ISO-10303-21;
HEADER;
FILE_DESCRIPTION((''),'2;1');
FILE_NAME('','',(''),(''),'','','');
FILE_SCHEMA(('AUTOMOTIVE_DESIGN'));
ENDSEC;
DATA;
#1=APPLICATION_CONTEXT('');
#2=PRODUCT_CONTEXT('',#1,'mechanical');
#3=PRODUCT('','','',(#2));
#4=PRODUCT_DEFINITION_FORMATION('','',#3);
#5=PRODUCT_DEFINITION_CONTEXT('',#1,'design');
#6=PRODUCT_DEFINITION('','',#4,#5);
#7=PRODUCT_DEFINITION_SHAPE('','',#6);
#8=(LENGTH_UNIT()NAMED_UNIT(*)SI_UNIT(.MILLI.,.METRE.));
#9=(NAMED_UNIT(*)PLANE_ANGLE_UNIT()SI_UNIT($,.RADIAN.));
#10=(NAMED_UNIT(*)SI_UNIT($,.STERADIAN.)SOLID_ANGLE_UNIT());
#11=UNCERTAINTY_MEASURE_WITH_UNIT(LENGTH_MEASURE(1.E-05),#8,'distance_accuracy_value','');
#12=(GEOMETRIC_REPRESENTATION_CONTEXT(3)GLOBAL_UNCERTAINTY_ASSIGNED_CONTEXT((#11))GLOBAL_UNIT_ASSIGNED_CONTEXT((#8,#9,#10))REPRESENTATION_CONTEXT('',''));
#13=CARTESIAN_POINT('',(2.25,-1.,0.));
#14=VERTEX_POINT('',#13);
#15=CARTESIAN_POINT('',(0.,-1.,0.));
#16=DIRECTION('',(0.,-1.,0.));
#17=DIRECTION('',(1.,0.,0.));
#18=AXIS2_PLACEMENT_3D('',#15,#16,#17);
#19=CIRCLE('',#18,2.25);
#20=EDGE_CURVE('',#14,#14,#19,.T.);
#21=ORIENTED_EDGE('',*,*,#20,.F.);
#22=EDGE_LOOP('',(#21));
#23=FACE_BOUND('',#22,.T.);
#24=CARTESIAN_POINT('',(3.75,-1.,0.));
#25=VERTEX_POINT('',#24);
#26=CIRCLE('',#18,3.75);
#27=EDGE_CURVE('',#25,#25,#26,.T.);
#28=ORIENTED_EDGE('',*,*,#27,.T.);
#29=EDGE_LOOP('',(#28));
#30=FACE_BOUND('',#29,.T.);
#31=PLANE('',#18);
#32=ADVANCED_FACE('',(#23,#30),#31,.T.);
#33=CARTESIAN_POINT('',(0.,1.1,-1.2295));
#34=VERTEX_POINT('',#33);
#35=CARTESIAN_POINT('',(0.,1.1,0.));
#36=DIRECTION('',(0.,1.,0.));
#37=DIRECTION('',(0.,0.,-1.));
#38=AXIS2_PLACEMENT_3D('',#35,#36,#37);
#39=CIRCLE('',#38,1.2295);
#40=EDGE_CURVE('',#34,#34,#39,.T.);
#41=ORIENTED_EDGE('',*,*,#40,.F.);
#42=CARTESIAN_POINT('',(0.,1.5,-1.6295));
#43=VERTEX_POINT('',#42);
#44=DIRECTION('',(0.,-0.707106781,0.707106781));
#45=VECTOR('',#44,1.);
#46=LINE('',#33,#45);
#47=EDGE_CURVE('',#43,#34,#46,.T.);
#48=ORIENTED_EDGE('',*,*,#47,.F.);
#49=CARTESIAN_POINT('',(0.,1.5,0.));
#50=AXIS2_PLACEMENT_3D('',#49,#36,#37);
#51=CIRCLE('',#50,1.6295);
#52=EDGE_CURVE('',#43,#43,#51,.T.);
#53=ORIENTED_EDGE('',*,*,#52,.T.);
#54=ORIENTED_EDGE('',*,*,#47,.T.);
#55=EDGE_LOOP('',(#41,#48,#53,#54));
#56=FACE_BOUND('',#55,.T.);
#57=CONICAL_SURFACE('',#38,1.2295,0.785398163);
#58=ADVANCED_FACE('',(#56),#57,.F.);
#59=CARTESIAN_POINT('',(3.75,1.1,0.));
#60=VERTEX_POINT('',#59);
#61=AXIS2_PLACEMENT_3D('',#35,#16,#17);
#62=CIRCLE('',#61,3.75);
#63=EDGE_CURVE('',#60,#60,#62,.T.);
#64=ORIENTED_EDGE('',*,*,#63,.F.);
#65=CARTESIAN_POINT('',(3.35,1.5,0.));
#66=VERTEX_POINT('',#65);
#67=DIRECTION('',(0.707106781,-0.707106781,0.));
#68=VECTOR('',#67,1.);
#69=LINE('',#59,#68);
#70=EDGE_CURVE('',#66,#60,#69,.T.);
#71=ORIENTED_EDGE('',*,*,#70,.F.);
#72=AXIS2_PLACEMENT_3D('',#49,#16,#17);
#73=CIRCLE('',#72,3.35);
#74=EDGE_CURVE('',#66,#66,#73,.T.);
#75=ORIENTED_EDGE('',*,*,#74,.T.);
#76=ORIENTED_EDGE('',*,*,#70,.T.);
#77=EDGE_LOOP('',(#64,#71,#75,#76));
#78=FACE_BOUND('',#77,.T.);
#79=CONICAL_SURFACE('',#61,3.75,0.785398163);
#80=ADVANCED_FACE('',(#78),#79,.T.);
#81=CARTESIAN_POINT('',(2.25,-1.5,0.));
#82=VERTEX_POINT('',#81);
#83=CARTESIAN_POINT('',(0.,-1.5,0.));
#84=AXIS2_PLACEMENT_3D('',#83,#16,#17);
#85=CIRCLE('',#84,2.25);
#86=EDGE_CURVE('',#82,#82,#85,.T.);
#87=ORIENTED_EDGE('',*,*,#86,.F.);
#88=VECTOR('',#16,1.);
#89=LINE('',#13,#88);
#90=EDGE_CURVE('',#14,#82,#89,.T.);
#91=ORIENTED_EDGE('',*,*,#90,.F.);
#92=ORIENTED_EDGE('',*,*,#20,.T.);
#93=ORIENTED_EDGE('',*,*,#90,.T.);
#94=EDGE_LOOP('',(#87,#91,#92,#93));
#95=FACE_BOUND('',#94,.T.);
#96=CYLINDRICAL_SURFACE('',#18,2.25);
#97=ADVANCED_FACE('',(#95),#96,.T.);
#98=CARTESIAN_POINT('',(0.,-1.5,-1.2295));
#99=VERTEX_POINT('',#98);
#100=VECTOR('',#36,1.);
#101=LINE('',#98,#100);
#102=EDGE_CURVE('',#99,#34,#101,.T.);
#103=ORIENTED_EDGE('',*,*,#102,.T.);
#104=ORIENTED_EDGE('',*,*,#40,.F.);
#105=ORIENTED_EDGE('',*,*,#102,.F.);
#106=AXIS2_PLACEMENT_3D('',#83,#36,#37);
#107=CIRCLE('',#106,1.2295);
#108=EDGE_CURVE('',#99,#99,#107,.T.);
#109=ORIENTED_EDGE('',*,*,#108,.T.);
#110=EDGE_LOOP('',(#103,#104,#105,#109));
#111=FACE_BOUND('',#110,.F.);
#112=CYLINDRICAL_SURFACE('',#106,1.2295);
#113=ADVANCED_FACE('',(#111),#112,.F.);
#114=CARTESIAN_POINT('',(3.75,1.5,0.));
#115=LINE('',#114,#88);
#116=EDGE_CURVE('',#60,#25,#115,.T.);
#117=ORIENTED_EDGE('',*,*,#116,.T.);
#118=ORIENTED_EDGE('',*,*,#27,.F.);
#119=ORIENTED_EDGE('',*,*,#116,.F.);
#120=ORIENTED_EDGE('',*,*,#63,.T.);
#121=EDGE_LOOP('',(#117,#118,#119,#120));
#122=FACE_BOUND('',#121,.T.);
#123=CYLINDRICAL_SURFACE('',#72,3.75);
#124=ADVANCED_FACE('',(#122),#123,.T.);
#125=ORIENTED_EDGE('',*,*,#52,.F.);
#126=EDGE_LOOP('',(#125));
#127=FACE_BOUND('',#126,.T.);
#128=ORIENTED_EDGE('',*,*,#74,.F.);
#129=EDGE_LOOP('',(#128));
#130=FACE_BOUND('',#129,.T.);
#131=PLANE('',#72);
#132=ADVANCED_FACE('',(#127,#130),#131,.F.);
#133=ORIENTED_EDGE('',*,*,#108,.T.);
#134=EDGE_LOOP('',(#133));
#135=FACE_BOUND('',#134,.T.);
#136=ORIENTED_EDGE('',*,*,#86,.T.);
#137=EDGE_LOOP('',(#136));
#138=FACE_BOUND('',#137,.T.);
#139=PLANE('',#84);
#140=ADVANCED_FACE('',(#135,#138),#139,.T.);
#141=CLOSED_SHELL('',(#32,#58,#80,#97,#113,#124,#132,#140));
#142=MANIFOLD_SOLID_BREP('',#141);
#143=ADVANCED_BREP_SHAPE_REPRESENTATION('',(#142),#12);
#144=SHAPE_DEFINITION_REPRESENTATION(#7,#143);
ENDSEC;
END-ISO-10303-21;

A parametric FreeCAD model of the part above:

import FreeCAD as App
import Part
import Sketcher


def edges_at(feature, points):
    """Names of the edges that pass closest to the given points."""
    edges = feature.Shape.Edges
    near = lambda p: min(range(len(edges)), key=lambda i: edges[i].distToShape(Part.Vertex(*p))[0])
    return sorted({f"Edge{near(p) + 1}" for p in points})

doc = App.newDocument("Part")
body = doc.addObject("PartDesign::Body", "Body")

# Sketch on XY plane
sketch1 = body.newObject("Sketcher::SketchObject", "Sketch")
sketch1.AttachmentSupport = (doc.getObject("XY_Plane"), [""])
sketch1.MapMode = "FlatFace"
sketch1.addGeometry([
    Part.LineSegment(App.Vector(3.8, 1.5, 0), App.Vector(0, 1.5, 0)),  # 0
    Part.LineSegment(App.Vector(0, 1.5, 0), App.Vector(0, -1.5, 0)),  # 1
    Part.LineSegment(App.Vector(0, -1.5, 0), App.Vector(2.2, -1.5, 0)),  # 2
    Part.LineSegment(App.Vector(2.2, -1.5, 0), App.Vector(2.2, -1, 0)),  # 3
    Part.LineSegment(App.Vector(2.2, -1, 0), App.Vector(3.8, -1, 0)),  # 4
    Part.LineSegment(App.Vector(3.8, -1, 0), App.Vector(3.8, 1.5, 0)),  # 5
], False)
sketch1.addConstraint([
    Sketcher.Constraint("Coincident", 0, 2, 1, 1),
    Sketcher.Constraint("Coincident", 1, 2, 2, 1),
    Sketcher.Constraint("Coincident", 2, 2, 3, 1),
    Sketcher.Constraint("Coincident", 3, 2, 4, 1),
    Sketcher.Constraint("Coincident", 4, 2, 5, 1),
    Sketcher.Constraint("Coincident", 5, 2, 0, 1),
    Sketcher.Constraint("Horizontal", 0),
    Sketcher.Constraint("Vertical", 1),
    Sketcher.Constraint("Horizontal", 2),
    Sketcher.Constraint("Vertical", 3),
    Sketcher.Constraint("Horizontal", 4),
    Sketcher.Constraint("Vertical", 5),
    Sketcher.Constraint("Symmetric", 0, 2, 1, 2, -1, 1),
    Sketcher.Constraint("DistanceY", 3, 1, 3, 2, 0.5),
    Sketcher.Constraint("DistanceY", 5, 1, 5, 2, 2.5),
    Sketcher.Constraint("DistanceX", 0, 2, 0, 1, 3.75),
    Sketcher.Constraint("DistanceX", 2, 1, 2, 2, 2.25),
])
revolution = body.newObject("PartDesign::Revolution", "Revolution")
revolution.Profile = sketch1
revolution.ReferenceAxis = (sketch1, ["V_Axis"])
revolution.Angle = 360

# Sketch on XZ plane
sketch2 = body.newObject("Sketcher::SketchObject", "Sketch001")
sketch2.AttachmentSupport = (doc.getObject("XZ_Plane"), [""])
sketch2.MapMode = "FlatFace"
sketch2.AttachmentOffset = App.Placement(App.Vector(0, 0, 1.5), App.Rotation())
sketch2.addGeometry(Part.Circle(App.Vector(0, 0, 0), App.Vector(0, 0, 1), 1.2), False)
sketch2.addConstraint([
    Sketcher.Constraint("Coincident", 0, 3, -1, 1),
    Sketcher.Constraint("Diameter", 0, 2.459),
])
doc.recompute()
hole = body.newObject("PartDesign::Hole", "Hole")
hole.Profile = sketch2
hole.ThreadType = "None"
hole.Diameter = 2.459
hole.DepthType = "ThroughAll"
doc.recompute()

chamfer = body.newObject("PartDesign::Chamfer", "Chamfer")
chamfer.Base = (hole, edges_at(hole, [(0, 1.5, 1.23), (-3.75, 1.5, 0)]))
chamfer.Size = 0.4

doc.recompute()
